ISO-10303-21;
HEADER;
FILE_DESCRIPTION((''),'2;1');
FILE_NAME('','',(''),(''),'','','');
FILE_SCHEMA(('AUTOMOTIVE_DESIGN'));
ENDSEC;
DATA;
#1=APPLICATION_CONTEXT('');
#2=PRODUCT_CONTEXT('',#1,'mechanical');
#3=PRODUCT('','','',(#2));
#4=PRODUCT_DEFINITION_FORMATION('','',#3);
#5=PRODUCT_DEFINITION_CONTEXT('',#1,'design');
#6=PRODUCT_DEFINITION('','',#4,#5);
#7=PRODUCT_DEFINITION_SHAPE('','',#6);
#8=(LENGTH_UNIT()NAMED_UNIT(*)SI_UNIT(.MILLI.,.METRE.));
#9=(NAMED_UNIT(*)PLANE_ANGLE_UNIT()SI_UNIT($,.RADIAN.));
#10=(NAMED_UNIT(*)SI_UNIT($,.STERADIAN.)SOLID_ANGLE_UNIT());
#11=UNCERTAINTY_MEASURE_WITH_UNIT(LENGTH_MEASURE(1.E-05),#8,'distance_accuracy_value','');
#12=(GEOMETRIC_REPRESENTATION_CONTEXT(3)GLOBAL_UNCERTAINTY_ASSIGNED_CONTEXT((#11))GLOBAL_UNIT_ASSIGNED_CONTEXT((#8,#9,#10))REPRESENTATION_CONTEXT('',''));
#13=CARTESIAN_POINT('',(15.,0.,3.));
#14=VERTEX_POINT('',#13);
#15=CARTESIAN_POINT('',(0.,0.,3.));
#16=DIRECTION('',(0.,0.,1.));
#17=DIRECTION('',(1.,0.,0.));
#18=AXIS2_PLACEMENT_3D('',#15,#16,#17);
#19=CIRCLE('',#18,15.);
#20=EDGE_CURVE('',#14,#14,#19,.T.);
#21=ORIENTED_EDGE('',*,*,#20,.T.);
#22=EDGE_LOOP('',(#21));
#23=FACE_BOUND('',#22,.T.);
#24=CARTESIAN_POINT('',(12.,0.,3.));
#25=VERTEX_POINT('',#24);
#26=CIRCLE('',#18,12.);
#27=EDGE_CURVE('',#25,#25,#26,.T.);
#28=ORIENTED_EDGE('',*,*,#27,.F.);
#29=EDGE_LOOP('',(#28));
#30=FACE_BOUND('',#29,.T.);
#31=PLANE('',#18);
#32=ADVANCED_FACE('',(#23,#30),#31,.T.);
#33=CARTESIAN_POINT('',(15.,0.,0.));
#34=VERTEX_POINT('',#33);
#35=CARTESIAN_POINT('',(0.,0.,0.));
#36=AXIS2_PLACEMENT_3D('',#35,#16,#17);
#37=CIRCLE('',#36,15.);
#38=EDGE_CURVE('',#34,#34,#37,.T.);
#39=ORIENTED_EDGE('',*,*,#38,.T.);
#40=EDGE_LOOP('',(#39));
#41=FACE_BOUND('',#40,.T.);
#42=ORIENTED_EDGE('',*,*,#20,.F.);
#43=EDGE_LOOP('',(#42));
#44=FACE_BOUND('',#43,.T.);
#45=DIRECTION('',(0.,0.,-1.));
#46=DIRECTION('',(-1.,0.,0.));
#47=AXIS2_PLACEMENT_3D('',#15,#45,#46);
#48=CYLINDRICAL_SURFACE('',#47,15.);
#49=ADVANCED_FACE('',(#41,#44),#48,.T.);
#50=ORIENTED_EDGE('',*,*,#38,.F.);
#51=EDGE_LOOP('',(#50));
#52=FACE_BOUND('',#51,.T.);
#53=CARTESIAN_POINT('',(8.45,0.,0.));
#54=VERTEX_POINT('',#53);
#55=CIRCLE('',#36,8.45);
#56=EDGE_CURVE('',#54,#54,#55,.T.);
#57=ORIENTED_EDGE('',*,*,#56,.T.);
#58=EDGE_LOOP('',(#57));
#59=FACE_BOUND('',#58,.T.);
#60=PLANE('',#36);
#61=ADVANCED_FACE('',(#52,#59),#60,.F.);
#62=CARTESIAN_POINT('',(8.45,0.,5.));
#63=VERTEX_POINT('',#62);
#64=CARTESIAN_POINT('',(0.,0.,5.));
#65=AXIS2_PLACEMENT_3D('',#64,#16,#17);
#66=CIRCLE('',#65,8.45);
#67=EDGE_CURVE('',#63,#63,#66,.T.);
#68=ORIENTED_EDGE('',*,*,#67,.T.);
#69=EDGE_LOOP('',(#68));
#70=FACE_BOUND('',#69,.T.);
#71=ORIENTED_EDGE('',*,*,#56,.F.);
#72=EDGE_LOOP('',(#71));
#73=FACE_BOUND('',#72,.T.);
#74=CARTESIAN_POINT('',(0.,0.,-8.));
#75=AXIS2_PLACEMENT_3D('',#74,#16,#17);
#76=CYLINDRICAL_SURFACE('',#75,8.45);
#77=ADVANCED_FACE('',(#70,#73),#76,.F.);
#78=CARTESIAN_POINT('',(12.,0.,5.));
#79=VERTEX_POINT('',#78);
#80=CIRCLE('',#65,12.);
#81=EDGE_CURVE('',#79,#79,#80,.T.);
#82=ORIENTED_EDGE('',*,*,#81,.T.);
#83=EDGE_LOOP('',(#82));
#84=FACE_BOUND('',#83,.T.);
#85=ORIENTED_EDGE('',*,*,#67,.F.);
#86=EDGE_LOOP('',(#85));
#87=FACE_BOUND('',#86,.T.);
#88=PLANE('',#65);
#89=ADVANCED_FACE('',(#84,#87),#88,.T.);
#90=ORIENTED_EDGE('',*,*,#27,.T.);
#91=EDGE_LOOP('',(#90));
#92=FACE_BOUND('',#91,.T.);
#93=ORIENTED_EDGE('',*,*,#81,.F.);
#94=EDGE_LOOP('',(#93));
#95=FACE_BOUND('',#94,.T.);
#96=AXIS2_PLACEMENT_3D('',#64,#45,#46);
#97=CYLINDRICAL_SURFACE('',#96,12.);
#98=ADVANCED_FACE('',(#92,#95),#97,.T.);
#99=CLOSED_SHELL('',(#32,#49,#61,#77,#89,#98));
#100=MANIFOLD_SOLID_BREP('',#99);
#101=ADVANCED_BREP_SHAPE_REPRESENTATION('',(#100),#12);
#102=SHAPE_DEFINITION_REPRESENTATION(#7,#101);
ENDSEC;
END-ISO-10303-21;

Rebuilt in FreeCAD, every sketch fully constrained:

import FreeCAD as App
import Part
import Sketcher
from FreeCAD import Vector
Q = App.Units.Quantity

doc = App.newDocument("Part")
body = doc.addObject("PartDesign::Body", "Body")

# Sketch on XY plane
sketch1 = doc.addObject("Sketcher::SketchObject", "Sketch")
body.addObject(sketch1)
sketch1.AttachmentSupport = (doc.XY_Plane, [""])
sketch1.MapMode = "FlatFace"
sketch1.addGeometry(Part.Circle(Vector(0, 0, 0), Vector(0, 0, 1), 15), False)
sketch1.addConstraint([
    Sketcher.Constraint("Coincident", 0, 3, -1, 1),
    Sketcher.Constraint("Diameter", 0, Q("30 mm")),
])
pad1 = doc.addObject("PartDesign::Pad", "Pad")
body.addObject(pad1)
pad1.Profile = sketch1
pad1.Length = 3

# Sketch on XY plane
sketch2 = doc.addObject("Sketcher::SketchObject", "Sketch001")
body.addObject(sketch2)
sketch2.AttachmentSupport = (doc.XY_Plane, [""])
sketch2.MapMode = "FlatFace"
sketch2.AttachmentOffset = App.Placement(Vector(0, 0, 3), App.Rotation())
sketch2.addGeometry(Part.Circle(Vector(0, 0, 0), Vector(0, 0, 1), 12), False)
sketch2.addConstraint([
    Sketcher.Constraint("Coincident", 0, 3, -1, 1),
    Sketcher.Constraint("Diameter", 0, Q("24 mm")),
])
pad2 = doc.addObject("PartDesign::Pad", "Pad001")
body.addObject(pad2)
pad2.Profile = sketch2
pad2.Length = 2

# Sketch on XY plane
sketch3 = doc.addObject("Sketcher::SketchObject", "Sketch002")
body.addObject(sketch3)
sketch3.AttachmentSupport = (doc.XY_Plane, [""])
sketch3.MapMode = "FlatFace"
sketch3.AttachmentOffset = App.Placement(Vector(0, 0, 5), App.Rotation())
sketch3.addGeometry(Part.Circle(Vector(0, 0, 0), Vector(0, 0, 1), 8), False)
sketch3.addConstraint([
    Sketcher.Constraint("Coincident", 0, 3, -1, 1),
    Sketcher.Constraint("Diameter", 0, Q("16.9 mm")),
])
pocket1 = doc.addObject("PartDesign::Pocket", "Pocket")
body.addObject(pocket1)
pocket1.Profile = sketch3
pocket1.Length = 13

doc.recompute()
